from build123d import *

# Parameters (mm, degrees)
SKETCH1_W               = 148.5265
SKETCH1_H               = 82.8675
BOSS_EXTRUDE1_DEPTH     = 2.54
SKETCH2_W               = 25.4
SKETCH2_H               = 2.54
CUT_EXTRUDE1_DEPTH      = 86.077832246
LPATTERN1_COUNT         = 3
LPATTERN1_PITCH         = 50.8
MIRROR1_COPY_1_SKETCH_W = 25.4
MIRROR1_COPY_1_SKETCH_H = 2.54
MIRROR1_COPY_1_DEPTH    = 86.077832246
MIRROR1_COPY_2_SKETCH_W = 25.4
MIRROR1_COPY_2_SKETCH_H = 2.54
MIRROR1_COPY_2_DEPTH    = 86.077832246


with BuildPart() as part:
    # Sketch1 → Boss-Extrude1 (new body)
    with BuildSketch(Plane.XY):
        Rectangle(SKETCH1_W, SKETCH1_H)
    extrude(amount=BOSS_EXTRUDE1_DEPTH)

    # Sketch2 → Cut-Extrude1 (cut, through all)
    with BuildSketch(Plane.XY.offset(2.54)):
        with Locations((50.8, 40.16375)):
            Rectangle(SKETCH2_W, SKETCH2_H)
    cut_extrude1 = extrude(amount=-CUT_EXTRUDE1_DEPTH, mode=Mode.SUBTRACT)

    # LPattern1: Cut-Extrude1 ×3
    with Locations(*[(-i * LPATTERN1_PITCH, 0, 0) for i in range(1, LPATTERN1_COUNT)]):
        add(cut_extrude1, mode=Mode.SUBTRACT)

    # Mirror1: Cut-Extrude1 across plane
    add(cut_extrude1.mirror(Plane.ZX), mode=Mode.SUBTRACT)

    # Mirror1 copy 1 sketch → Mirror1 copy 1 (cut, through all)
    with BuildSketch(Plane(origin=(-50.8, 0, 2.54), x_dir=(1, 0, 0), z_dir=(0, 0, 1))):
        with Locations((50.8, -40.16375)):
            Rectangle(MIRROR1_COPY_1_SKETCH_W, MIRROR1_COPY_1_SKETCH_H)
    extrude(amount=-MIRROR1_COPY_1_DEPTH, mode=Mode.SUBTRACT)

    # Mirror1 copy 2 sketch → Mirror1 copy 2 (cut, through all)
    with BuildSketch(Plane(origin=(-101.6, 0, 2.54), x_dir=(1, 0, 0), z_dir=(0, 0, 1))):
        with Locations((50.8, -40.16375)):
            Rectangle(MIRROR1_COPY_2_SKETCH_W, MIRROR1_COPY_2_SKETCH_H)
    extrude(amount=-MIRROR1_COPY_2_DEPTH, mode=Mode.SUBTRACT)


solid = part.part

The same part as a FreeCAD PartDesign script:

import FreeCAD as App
import Part
import Sketcher

V = App.Vector
Q = App.Units.Quantity

doc = App.newDocument("Part")
body = doc.addObject("PartDesign::Body", "Body")

# Sketch on XY plane
sketch1 = body.newObject("Sketcher::SketchObject", "Sketch")
sketch1.AttachmentSupport = (doc.getObject("XY_Plane"), [""])
sketch1.MapMode = "FlatFace"
sketch1.addGeometry([
    Part.LineSegment(V(-74, 41, 0), V(-74, -41, 0)),
    Part.LineSegment(V(-74, -41, 0), V(74, -41, 0)),
    Part.LineSegment(V(74, -41, 0), V(74, 41, 0)),
    Part.LineSegment(V(74, 41, 0), V(-74, 41, 0)),
], False)
sketch1.addConstraint([
    Sketcher.Constraint("Coincident", 0, 2, 1, 1),
    Sketcher.Constraint("Coincident", 1, 2, 2, 1),
    Sketcher.Constraint("Coincident", 2, 2, 3, 1),
    Sketcher.Constraint("Coincident", 3, 2, 0, 1),
    Sketcher.Constraint("Vertical", 0),
    Sketcher.Constraint("Horizontal", 1),
    Sketcher.Constraint("Vertical", 2),
    Sketcher.Constraint("Horizontal", 3),
    Sketcher.Constraint("Symmetric", 0, 2, 2, 2, -1, 1),
    Sketcher.Constraint("DistanceX", 1, 1, 1, 2, Q("5.8475 in")),
    Sketcher.Constraint("DistanceY", 0, 2, 0, 1, Q("3.2625 in")),
])
pad1 = body.newObject("PartDesign::Pad", "Pad")
pad1.Profile = sketch1
pad1.Length = Q("0.1 in")

# Sketch on XY plane
sketch2 = body.newObject("Sketcher::SketchObject", "Sketch001")
sketch2.AttachmentSupport = (doc.getObject("XY_Plane"), [""])
sketch2.MapMode = "FlatFace"
sketch2.AttachmentOffset = App.Placement(V(0, 0, 0.1 * 25.4), App.Rotation())
sketch2.addGeometry([
    Part.LineSegment(V(38.1, 41.4, 0), V(38.1, 38.9, 0)),
    Part.LineSegment(V(38.1, 38.9, 0), V(63.5, 38.9, 0)),
    Part.LineSegment(V(63.5, 38.9, 0), V(63.5, 41.4, 0)),
    Part.LineSegment(V(63.5, 41.4, 0), V(38.1, 41.4, 0)),
], False)
sketch2.addConstraint([
    Sketcher.Constraint("Coincident", 0, 2, 1, 1),
    Sketcher.Constraint("Coincident", 1, 2, 2, 1),
    Sketcher.Constraint("Coincident", 2, 2, 3, 1),
    Sketcher.Constraint("Coincident", 3, 2, 0, 1),
    Sketcher.Constraint("Vertical", 0),
    Sketcher.Constraint("Horizontal", 1),
    Sketcher.Constraint("Vertical", 2),
    Sketcher.Constraint("Horizontal", 3),
    Sketcher.Constraint("DistanceX", 1, 1, 1, 2, Q("1 in")),
    Sketcher.Constraint("DistanceY", 0, 2, 0, 1, Q("0.1 in")),
    Sketcher.Constraint("DistanceX", -1, 1, 0, 2, Q("1.5 in")),
    Sketcher.Constraint("DistanceY", -1, 1, 0, 2, Q("1.53125 in")),
])
pocket1 = body.newObject("PartDesign::Pocket", "Pocket")
pocket1.Profile = sketch2
pocket1.Type = "ThroughAll"
doc.recompute()

linearpattern = body.newObject("PartDesign::LinearPattern", "LinearPattern")
linearpattern.Originals = [pocket1]
linearpattern.Direction = (doc.getObject("X_Axis"), [""])
linearpattern.Mode = "offset"
linearpattern.Offset = Q("2 in")
linearpattern.Occurrences = 3
linearpattern.Reversed = True
body.Tip = linearpattern
doc.recompute()

mirrored = body.newObject("PartDesign::Mirrored", "Mirrored")
mirrored.Originals = [pocket1]
mirrored.MirrorPlane = (doc.getObject("XZ_Plane"), [""])
body.Tip = mirrored

# Sketch on XY plane
sketch3 = body.newObject("Sketcher::SketchObject", "Sketch002")
sketch3.AttachmentSupport = (doc.getObject("XY_Plane"), [""])
sketch3.MapMode = "FlatFace"
sketch3.AttachmentOffset = App.Placement(V(0, 0, 0.1 * 25.4), App.Rotation())
sketch3.addGeometry([
    Part.LineSegment(V(-12.7, -38.9, 0), V(-12.7, -41.4, 0)),
    Part.LineSegment(V(-12.7, -41.4, 0), V(12.7, -41.4, 0)),
    Part.LineSegment(V(12.7, -41.4, 0), V(12.7, -38.9, 0)),
    Part.LineSegment(V(12.7, -38.9, 0), V(-12.7, -38.9, 0)),
], False)
sketch3.addConstraint([
    Sketcher.Constraint("Coincident", 0, 2, 1, 1),
    Sketcher.Constraint("Coincident", 1, 2, 2, 1),
    Sketcher.Constraint("Coincident", 2, 2, 3, 1),
    Sketcher.Constraint("Coincident", 3, 2, 0, 1),
    Sketcher.Constraint("Vertical", 0),
    Sketcher.Constraint("Horizontal", 1),
    Sketcher.Constraint("Vertical", 2),
    Sketcher.Constraint("Horizontal", 3),
    Sketcher.Constraint("DistanceX", 1, 1, 1, 2, Q("1 in")),
    Sketcher.Constraint("DistanceY", 0, 2, 0, 1, Q("0.1 in")),
    Sketcher.Constraint("DistanceX", 0, 2, -1, 1, Q("0.5 in")),
    Sketcher.Constraint("DistanceY", 2, 2, -1, 1, Q("1.53125 in")),
])
pocket2 = body.newObject("PartDesign::Pocket", "Pocket001")
pocket2.Profile = sketch3
pocket2.Type = "ThroughAll"

# Sketch on XY plane
sketch4 = body.newObject("Sketcher::SketchObject", "Sketch003")
sketch4.AttachmentSupport = (doc.getObject("XY_Plane"), [""])
sketch4.MapMode = "FlatFace"
sketch4.AttachmentOffset = App.Placement(V(0, 0, 0.1 * 25.4), App.Rotation())
sketch4.addGeometry([
    Part.LineSegment(V(-63.5, -38.9, 0), V(-63.5, -41.4, 0)),
    Part.LineSegment(V(-63.5, -41.4, 0), V(-38.1, -41.4, 0)),
    Part.LineSegment(V(-38.1, -41.4, 0), V(-38.1, -38.9, 0)),
    Part.LineSegment(V(-38.1, -38.9, 0), V(-63.5, -38.9, 0)),
], False)
sketch4.addConstraint([
    Sketcher.Constraint("Coincident", 0, 2, 1, 1),
    Sketcher.Constraint("Coincident", 1, 2, 2, 1),
    Sketcher.Constraint("Coincident", 2, 2, 3, 1),
    Sketcher.Constraint("Coincident", 3, 2, 0, 1),
    Sketcher.Constraint("Vertical", 0),
    Sketcher.Constraint("Horizontal", 1),
    Sketcher.Constraint("Vertical", 2),
    Sketcher.Constraint("Horizontal", 3),
    Sketcher.Constraint("DistanceX", 1, 1, 1, 2, Q("1 in")),
    Sketcher.Constraint("DistanceY", 0, 2, 0, 1, Q("0.1 in")),
    Sketcher.Constraint("DistanceX", 0, 2, -1, 1, Q("2.5 in")),
    Sketcher.Constraint("DistanceY", 2, 2, -1, 1, Q("1.53125 in")),
])
pocket3 = body.newObject("PartDesign::Pocket", "Pocket002")
pocket3.Profile = sketch4
pocket3.Type = "ThroughAll"

doc.recompute()
